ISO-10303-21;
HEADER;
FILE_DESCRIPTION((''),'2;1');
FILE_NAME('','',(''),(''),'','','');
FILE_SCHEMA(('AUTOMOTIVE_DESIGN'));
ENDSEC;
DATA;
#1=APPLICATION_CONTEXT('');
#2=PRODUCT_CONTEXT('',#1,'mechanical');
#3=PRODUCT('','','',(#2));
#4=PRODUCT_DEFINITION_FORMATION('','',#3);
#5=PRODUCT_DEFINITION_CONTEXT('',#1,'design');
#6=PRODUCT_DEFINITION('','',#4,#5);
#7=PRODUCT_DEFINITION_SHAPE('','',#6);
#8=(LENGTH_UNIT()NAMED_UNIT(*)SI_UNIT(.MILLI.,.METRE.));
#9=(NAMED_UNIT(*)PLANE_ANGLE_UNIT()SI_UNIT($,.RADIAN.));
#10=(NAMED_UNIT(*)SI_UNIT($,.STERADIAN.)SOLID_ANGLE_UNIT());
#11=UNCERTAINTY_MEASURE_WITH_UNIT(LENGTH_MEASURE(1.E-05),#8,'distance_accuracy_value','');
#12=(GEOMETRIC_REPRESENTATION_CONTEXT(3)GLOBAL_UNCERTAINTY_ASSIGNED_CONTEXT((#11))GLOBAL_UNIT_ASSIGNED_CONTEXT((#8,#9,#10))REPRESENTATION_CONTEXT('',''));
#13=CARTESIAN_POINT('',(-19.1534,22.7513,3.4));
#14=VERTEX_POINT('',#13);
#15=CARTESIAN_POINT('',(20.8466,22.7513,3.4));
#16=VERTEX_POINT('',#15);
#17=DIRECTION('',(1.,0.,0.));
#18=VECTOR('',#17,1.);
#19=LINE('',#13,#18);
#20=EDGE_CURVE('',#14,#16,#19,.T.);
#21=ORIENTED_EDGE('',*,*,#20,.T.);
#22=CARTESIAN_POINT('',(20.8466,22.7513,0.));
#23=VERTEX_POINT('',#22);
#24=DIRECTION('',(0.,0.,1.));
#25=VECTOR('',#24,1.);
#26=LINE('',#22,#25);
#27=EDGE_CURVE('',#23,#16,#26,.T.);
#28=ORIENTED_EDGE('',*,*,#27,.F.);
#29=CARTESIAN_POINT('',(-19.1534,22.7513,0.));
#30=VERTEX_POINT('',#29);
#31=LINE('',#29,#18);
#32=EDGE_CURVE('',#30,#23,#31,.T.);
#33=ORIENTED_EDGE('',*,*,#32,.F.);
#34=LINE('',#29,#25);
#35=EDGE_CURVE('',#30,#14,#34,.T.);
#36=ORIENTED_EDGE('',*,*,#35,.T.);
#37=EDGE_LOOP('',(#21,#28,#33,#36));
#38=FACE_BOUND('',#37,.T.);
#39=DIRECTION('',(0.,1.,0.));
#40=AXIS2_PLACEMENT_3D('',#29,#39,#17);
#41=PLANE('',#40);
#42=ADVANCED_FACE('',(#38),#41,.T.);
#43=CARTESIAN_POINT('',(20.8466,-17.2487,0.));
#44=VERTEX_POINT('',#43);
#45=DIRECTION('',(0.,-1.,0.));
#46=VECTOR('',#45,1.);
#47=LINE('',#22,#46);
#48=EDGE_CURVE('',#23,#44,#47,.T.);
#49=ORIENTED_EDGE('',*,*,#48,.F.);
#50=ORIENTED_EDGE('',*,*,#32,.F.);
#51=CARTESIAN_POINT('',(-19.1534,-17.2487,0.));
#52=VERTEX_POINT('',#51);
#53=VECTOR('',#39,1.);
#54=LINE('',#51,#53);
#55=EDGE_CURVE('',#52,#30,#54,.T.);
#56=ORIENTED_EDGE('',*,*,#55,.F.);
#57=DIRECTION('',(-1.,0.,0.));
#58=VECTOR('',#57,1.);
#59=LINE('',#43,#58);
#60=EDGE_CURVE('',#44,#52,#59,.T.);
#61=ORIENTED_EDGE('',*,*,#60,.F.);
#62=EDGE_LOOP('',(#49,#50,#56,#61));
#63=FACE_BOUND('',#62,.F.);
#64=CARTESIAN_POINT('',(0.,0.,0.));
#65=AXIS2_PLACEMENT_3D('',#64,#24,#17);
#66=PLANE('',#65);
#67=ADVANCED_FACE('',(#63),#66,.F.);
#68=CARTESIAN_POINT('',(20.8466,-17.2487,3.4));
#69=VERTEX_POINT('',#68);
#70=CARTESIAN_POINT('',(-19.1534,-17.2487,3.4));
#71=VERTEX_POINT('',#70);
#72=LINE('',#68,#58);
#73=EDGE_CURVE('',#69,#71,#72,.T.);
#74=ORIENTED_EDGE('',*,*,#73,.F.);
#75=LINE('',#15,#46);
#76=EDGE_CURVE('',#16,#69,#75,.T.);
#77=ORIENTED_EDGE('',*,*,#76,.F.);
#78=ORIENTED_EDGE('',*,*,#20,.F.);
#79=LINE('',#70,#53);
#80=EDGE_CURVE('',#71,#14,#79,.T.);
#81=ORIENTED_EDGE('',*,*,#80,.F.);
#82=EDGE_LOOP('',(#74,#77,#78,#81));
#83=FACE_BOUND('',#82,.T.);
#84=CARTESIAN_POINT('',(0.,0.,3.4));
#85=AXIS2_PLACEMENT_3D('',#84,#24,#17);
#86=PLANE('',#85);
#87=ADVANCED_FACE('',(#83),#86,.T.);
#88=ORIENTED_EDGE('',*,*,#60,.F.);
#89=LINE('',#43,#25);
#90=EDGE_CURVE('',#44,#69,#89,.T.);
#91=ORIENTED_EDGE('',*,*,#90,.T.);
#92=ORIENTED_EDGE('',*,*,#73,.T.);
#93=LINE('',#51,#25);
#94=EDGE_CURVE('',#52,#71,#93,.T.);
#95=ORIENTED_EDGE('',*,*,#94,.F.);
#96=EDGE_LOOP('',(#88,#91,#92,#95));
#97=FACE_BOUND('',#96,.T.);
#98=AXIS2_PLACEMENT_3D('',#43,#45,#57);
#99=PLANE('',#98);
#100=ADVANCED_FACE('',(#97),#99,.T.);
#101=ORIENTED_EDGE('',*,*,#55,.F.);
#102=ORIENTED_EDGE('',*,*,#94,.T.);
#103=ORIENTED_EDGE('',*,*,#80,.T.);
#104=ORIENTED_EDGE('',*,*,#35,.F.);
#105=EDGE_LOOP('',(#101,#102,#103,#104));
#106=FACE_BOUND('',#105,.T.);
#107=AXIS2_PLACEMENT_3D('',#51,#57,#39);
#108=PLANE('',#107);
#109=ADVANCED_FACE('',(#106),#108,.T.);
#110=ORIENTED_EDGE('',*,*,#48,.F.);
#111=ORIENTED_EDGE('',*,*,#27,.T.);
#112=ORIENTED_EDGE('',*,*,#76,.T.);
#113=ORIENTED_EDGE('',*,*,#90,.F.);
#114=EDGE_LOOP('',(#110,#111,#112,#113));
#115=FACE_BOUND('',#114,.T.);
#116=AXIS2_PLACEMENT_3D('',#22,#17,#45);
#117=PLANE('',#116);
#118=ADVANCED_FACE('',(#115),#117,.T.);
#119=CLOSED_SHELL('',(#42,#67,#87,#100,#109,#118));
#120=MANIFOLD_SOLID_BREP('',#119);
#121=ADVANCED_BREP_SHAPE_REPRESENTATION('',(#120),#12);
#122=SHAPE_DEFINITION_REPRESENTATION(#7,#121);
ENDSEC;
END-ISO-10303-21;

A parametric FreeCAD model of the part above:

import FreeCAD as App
import Part
import Sketcher

V = App.Vector


def add_polygon(sketch, points):
    """Adds a closed chain of lines whose ends are joined by coincident constraints."""
    first, n = sketch.GeometryCount, len(points)
    for a, b in zip(points, points[1:] + points[:1]):
        sketch.addGeometry(Part.LineSegment(App.Vector(*a, 0), App.Vector(*b, 0)), False)
    for i in range(n):
        sketch.addConstraint(Sketcher.Constraint("Coincident", first + i, 2, first + (i + 1) % n, 1))

doc = App.newDocument("Part")
params = doc.addObject("Spreadsheet::Sheet", "Params")
for row, (alias, value) in enumerate([
    ("sketch1_width", "40 mm"),
    ("pad1_length", "3.4 mm"),
], start=1):
    params.set(f"A{row}", alias)
    params.set(f"B{row}", "=" + value)
    params.setAlias(f"B{row}", alias)

body = doc.addObject("PartDesign::Body", "Body")

# Sketch on XY plane
sketch1 = body.newObject("Sketcher::SketchObject", "Sketch")
sketch1.AttachmentSupport = (doc.getObject("XY_Plane"), [""])
sketch1.MapMode = "FlatFace"
add_polygon(sketch1, [(21, 23), (-19, 23), (-19, -17), (21, -17)])  # lines 0-3
sketch1.addConstraint(Sketcher.Constraint("Horizontal", 0))
sketch1.addConstraint(Sketcher.Constraint("Vertical", 1))
sketch1.addConstraint(Sketcher.Constraint("Horizontal", 2))
sketch1.addConstraint(Sketcher.Constraint("Vertical", 3))
sketch1.addConstraint(Sketcher.Constraint("Equal", 2, 1))
sketch1.addConstraint(Sketcher.Constraint("DistanceX", 0, 2, 0, 1, 40.0))
sketch1.addConstraint(Sketcher.Constraint("DistanceX", 0, 2, -1, 1, 19.1534))
sketch1.addConstraint(Sketcher.Constraint("DistanceY", -1, 1, 0, 2, 22.7513))
sketch1.setExpression("Constraints[9]", "Params.sketch1_width")
pad1 = body.newObject("PartDesign::Pad", "Pad")
pad1.Profile = sketch1
pad1.setExpression("Length", "Params.pad1_length")

doc.recompute()
